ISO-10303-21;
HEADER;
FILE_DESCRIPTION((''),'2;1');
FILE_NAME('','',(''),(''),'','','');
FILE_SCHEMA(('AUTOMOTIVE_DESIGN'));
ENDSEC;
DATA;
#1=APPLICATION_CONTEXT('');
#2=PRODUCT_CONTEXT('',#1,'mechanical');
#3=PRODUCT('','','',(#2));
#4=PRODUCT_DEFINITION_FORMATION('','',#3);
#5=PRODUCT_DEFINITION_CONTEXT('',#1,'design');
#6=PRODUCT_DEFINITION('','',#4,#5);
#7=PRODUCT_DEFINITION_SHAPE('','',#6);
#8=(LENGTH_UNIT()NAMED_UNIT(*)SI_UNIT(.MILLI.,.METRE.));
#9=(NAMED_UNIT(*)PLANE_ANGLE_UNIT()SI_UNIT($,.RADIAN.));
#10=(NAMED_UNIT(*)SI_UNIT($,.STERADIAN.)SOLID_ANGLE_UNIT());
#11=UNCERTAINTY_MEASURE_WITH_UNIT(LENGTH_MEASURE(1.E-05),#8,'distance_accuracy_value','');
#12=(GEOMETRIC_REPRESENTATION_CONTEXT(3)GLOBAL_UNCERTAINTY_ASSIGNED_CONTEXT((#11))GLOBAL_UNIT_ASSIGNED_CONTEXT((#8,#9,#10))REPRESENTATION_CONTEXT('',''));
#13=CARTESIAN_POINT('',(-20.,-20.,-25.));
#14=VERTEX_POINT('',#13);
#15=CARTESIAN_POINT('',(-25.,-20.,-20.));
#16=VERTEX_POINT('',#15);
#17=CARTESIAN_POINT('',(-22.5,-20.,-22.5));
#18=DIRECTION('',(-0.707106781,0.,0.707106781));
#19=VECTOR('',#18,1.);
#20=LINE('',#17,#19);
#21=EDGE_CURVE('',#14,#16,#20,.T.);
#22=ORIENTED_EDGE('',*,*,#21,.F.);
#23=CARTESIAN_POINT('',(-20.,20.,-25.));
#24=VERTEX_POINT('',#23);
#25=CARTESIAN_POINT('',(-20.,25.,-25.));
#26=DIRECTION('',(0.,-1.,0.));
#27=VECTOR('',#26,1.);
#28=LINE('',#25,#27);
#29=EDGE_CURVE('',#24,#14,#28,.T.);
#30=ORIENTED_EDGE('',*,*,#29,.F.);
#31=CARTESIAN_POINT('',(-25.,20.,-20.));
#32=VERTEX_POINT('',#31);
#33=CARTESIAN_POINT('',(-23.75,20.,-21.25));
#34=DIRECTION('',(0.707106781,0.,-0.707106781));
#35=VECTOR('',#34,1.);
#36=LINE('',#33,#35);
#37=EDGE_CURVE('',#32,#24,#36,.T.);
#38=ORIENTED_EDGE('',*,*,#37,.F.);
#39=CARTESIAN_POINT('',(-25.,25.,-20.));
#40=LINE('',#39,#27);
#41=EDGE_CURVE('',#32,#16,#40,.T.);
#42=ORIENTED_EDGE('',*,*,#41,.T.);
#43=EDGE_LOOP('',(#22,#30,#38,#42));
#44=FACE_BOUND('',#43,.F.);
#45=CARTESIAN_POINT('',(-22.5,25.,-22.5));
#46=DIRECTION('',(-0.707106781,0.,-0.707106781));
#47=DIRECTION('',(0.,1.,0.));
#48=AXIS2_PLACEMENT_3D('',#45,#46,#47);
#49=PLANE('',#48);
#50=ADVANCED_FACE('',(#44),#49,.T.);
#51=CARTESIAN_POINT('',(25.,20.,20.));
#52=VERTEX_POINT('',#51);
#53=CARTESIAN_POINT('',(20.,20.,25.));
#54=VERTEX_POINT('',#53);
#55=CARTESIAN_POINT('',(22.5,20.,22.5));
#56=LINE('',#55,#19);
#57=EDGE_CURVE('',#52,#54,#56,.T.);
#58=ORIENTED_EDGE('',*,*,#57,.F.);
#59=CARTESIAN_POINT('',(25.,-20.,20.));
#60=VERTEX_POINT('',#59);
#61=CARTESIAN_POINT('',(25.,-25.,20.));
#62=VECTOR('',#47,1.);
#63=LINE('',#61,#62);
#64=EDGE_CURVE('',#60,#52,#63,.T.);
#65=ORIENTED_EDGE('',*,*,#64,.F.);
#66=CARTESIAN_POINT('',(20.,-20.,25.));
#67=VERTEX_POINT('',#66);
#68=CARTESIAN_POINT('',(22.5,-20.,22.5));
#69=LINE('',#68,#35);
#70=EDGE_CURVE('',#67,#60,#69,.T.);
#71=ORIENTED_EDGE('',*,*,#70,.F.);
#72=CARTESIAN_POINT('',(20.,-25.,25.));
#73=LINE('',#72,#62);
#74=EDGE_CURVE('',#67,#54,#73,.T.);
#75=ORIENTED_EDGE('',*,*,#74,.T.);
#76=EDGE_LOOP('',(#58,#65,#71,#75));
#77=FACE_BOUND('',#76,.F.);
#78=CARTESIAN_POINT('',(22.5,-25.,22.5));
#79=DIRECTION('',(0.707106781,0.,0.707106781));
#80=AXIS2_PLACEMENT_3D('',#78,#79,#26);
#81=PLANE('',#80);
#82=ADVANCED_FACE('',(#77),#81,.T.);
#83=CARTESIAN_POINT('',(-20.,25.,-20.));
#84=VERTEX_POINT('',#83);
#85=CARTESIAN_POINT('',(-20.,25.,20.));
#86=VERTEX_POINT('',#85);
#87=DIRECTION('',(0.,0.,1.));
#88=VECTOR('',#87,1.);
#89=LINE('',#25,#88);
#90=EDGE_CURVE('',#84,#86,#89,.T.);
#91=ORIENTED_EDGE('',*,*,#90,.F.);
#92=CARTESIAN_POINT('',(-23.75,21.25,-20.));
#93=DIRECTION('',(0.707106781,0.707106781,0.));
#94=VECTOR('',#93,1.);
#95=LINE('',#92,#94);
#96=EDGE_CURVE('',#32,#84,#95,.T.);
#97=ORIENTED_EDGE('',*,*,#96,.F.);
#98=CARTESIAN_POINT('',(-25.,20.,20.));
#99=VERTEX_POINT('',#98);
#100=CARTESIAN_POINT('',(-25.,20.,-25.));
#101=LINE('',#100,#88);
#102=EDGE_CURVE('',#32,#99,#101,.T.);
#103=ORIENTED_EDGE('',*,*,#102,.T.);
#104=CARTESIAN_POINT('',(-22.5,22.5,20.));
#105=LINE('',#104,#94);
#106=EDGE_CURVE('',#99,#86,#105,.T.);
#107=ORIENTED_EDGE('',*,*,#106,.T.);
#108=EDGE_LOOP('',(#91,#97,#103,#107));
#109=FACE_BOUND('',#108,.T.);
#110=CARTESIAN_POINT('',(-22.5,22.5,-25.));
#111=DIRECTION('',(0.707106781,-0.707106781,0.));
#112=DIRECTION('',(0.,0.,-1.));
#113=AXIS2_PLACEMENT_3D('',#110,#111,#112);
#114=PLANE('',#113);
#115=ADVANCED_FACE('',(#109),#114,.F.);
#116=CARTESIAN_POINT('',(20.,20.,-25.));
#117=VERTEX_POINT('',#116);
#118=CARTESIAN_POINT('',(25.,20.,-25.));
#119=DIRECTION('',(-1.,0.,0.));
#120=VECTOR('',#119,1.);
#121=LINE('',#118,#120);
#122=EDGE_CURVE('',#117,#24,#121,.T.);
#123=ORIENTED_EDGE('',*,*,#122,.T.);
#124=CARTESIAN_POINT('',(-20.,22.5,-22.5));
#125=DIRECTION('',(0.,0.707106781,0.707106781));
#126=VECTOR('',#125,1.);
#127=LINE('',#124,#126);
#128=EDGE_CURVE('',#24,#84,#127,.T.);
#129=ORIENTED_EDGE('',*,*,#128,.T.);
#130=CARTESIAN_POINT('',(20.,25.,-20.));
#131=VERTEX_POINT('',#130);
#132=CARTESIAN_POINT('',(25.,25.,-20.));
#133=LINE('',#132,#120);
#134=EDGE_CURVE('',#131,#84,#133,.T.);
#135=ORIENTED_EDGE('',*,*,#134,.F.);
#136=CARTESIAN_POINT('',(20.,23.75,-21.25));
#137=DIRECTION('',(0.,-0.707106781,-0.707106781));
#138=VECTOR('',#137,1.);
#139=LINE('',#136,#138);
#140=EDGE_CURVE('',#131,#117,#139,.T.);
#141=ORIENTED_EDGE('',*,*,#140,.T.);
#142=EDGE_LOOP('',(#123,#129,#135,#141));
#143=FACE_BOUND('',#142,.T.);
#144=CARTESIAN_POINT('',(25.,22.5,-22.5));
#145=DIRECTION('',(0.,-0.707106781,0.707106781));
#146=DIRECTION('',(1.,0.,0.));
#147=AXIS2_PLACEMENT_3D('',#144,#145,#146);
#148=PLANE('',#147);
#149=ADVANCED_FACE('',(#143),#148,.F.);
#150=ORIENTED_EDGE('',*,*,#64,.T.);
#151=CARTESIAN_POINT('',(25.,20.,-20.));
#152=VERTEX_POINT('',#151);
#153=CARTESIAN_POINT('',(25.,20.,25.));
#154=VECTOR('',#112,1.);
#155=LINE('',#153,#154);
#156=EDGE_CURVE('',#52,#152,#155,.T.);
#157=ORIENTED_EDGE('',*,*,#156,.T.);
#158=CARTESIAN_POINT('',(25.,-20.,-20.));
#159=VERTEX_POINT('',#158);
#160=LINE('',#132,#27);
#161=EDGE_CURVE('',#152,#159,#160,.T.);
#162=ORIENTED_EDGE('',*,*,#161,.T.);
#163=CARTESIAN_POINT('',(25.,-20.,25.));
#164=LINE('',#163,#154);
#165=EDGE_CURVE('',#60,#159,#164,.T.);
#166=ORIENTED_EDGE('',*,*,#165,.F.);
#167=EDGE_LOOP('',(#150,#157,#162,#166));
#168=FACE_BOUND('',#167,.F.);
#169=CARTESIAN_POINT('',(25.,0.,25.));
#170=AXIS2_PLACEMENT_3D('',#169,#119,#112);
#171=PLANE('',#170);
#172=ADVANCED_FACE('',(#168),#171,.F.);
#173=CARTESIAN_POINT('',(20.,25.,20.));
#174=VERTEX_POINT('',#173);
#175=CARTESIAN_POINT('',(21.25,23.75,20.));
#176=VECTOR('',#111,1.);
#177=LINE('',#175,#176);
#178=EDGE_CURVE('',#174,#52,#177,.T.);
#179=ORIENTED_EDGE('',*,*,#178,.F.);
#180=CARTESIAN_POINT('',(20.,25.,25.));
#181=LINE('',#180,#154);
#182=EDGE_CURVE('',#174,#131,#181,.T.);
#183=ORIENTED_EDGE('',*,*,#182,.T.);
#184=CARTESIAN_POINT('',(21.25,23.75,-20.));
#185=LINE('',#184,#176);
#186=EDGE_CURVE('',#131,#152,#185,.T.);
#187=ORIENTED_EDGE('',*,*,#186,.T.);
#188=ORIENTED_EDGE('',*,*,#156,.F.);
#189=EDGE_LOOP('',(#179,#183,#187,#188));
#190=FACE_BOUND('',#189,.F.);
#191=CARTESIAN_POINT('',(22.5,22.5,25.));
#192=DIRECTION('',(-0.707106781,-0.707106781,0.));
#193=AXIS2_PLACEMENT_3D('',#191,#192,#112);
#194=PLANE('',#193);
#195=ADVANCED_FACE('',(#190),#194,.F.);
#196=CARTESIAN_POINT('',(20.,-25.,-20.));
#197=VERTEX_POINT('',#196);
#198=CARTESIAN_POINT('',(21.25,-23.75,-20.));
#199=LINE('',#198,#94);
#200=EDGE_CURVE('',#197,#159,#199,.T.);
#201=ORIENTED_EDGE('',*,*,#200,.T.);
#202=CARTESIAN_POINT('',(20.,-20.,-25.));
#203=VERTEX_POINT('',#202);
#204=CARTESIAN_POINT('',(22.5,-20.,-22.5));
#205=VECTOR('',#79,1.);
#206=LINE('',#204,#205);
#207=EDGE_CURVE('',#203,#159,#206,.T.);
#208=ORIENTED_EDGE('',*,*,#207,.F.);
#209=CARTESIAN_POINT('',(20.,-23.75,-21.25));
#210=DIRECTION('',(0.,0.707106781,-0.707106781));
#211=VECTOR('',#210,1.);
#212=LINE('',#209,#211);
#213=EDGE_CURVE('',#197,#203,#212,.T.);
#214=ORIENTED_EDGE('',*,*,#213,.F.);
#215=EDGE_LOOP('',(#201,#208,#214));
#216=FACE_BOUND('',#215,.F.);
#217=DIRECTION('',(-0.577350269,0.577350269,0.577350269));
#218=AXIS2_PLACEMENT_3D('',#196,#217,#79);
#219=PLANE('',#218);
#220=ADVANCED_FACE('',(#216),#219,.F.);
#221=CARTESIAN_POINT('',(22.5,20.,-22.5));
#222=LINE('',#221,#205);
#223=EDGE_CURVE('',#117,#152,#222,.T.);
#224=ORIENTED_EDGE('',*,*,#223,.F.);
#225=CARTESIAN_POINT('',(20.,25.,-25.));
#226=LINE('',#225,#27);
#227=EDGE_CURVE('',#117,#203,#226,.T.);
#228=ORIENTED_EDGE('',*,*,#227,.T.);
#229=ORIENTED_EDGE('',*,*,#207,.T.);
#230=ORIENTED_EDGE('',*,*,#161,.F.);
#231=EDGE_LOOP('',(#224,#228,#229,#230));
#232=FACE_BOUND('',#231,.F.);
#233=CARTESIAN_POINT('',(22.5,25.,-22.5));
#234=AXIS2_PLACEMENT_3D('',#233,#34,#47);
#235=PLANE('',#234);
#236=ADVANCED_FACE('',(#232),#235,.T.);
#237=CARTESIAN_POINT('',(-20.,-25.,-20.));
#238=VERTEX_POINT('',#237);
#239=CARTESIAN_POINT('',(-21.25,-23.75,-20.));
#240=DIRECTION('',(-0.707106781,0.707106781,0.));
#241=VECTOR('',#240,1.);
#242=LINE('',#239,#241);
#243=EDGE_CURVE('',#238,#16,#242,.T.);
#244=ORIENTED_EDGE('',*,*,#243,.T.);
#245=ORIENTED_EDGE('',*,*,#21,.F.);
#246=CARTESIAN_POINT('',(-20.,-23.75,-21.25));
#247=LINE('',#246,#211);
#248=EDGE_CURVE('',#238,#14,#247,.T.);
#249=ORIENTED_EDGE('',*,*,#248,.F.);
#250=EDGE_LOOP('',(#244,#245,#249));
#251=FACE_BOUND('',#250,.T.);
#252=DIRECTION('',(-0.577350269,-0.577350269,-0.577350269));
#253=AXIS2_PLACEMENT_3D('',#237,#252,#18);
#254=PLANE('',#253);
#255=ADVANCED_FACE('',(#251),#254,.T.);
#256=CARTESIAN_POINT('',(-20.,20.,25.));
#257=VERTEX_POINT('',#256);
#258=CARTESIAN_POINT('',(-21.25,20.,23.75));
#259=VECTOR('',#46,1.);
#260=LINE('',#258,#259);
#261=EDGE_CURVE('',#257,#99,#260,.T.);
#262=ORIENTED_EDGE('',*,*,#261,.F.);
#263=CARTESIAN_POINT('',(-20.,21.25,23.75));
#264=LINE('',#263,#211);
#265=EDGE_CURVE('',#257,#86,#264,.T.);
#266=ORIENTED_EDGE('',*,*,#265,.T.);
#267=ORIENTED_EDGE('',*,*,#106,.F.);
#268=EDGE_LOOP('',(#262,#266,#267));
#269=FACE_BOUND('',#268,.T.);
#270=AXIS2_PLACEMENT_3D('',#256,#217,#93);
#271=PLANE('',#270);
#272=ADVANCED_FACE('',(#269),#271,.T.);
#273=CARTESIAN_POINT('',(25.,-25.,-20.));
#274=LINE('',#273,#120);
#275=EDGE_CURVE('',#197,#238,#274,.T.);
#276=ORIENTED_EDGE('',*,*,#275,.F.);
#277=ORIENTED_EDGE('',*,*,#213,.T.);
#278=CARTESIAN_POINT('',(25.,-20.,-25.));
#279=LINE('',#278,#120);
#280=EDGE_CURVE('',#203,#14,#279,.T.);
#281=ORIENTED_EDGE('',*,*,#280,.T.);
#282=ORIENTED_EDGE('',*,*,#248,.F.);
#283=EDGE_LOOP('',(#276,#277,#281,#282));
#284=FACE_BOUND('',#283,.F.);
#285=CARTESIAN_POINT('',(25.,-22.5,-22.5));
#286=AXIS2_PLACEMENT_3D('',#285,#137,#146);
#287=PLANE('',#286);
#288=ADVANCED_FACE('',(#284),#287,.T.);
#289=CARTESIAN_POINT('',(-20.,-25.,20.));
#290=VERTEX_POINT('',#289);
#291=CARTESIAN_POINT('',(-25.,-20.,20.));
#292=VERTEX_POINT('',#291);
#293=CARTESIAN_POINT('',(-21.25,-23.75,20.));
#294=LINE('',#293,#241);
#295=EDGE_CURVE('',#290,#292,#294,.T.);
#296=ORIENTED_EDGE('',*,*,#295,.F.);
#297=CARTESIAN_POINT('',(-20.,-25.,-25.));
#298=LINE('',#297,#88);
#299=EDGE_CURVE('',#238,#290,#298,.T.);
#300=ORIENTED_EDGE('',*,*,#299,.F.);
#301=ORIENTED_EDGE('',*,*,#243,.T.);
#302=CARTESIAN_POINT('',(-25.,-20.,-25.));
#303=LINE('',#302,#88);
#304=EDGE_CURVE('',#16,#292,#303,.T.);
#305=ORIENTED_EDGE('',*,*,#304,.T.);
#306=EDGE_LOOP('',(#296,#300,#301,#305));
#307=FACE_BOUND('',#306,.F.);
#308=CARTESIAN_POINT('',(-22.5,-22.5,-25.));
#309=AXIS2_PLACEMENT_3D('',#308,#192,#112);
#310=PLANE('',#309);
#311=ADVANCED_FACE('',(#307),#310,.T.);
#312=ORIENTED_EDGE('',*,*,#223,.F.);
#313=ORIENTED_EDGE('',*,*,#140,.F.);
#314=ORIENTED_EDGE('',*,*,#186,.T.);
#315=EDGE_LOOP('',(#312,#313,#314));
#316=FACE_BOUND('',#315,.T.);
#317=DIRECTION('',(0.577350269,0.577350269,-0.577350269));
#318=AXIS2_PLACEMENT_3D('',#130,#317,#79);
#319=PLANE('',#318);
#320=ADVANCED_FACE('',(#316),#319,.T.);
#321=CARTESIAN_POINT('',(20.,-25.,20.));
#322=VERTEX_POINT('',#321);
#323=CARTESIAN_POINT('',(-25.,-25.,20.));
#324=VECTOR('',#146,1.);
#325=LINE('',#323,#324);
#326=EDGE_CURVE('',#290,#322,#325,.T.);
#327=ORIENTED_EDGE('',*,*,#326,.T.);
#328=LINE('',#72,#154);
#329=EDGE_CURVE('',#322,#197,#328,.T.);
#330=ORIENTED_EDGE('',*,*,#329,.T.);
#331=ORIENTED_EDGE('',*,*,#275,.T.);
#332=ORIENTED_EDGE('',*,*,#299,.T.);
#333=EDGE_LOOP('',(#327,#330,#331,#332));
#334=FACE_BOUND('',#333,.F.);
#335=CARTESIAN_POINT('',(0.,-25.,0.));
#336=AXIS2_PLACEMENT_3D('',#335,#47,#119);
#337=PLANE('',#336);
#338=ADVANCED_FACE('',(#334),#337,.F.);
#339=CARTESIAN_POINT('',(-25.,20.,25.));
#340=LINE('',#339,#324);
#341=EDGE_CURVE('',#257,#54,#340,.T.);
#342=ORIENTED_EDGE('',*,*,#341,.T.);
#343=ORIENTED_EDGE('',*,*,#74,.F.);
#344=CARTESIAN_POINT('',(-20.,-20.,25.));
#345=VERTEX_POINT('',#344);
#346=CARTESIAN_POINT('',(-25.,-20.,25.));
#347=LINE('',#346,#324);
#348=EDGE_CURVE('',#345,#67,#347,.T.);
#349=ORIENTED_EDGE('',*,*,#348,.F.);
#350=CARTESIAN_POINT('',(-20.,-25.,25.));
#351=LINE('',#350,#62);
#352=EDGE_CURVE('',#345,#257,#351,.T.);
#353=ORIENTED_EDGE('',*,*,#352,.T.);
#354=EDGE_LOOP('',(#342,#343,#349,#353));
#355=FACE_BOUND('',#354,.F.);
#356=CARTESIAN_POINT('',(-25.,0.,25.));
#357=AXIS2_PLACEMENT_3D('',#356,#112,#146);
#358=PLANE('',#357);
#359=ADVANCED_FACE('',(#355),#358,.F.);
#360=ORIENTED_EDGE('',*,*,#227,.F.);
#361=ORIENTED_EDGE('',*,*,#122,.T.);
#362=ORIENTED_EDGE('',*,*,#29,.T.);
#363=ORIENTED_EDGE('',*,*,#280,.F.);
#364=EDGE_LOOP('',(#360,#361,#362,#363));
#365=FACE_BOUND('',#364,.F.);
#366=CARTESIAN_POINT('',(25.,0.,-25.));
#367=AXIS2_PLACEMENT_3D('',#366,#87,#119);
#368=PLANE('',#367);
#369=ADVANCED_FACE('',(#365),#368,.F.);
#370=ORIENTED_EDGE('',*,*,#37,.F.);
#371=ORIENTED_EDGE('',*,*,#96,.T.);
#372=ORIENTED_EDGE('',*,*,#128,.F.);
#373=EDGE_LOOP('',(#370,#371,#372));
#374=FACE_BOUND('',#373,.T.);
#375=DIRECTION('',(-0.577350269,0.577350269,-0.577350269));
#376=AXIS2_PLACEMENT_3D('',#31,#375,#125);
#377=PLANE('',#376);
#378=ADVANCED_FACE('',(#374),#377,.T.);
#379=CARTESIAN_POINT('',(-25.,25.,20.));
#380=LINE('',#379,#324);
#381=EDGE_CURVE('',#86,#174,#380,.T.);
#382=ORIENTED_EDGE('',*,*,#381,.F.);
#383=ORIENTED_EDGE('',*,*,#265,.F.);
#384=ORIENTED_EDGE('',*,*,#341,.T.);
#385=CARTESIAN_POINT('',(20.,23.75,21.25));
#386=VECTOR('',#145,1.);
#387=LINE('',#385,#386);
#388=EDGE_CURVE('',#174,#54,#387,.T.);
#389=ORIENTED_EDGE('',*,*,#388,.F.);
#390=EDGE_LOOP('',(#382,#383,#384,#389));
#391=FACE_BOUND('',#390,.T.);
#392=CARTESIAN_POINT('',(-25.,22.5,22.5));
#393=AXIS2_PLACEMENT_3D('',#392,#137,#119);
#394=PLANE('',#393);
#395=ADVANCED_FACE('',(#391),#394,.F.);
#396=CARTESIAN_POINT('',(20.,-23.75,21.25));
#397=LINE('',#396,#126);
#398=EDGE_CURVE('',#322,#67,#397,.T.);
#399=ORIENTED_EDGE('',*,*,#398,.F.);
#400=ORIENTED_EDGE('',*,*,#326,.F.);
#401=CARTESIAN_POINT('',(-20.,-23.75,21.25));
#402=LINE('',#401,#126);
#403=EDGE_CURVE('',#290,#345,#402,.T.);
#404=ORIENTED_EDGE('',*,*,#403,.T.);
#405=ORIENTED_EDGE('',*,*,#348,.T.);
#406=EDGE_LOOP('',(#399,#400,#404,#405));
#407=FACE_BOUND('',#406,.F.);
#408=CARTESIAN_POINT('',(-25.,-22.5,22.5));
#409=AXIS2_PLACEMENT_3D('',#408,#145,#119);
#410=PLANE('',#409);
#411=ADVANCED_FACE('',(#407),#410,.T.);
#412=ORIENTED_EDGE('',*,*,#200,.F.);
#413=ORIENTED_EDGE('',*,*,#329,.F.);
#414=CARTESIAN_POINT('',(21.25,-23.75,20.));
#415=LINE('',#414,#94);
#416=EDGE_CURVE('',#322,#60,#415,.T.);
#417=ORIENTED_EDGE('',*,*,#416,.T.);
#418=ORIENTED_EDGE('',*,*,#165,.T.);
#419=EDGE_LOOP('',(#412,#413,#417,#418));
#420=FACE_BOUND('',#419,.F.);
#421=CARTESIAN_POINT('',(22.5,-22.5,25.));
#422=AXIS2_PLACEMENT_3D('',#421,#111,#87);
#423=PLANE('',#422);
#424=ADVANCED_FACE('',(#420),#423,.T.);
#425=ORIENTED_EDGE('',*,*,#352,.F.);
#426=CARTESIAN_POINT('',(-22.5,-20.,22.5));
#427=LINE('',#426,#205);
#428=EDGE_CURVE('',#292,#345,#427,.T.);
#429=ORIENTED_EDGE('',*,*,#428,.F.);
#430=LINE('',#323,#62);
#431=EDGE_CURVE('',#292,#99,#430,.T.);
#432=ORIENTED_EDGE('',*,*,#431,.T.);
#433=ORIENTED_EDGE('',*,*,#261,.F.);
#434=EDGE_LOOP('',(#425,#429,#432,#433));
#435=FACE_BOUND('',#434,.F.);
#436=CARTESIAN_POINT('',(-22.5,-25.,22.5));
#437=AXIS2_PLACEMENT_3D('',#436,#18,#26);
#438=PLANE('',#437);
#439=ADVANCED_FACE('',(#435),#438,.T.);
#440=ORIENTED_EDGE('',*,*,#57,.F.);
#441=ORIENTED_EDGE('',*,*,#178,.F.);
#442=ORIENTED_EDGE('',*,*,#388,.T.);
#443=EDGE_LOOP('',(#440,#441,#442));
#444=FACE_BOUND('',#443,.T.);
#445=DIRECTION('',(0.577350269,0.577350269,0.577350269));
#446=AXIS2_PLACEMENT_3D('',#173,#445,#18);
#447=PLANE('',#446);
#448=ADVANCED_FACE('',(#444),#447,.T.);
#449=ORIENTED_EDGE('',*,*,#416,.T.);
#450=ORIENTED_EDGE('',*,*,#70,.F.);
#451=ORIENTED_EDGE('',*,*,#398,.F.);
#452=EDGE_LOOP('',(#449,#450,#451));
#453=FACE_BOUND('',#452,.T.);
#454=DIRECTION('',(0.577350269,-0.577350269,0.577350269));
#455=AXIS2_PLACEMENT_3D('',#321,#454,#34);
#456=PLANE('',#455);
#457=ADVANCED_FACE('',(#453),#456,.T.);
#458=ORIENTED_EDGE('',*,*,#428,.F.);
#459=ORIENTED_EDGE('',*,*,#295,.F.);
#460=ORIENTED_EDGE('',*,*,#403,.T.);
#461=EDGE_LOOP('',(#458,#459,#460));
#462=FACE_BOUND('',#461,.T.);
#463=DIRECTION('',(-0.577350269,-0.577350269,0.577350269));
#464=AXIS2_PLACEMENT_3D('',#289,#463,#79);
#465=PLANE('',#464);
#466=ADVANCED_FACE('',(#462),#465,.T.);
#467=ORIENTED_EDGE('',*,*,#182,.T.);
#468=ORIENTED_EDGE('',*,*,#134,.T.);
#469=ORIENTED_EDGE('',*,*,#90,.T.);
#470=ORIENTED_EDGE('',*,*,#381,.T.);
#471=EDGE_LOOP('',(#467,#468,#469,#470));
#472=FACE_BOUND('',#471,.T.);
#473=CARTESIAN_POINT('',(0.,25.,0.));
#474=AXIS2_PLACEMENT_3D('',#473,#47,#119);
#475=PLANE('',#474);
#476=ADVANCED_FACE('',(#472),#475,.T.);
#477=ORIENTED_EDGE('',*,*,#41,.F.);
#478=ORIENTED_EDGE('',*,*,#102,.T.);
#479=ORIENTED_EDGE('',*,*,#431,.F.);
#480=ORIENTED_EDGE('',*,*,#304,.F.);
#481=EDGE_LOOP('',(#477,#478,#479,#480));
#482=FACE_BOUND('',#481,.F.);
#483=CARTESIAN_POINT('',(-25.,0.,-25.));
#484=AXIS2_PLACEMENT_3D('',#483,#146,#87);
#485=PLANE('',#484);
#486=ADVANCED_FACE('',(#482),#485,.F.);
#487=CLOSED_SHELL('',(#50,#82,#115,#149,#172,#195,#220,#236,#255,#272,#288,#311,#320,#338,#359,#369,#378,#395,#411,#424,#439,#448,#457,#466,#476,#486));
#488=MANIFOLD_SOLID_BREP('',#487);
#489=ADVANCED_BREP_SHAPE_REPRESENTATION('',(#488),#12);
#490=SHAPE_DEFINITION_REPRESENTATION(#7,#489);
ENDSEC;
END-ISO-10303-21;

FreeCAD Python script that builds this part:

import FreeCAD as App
import Part
import Sketcher

V = App.Vector
Q = App.Units.Quantity

doc = App.newDocument("Part")
params = doc.addObject("Spreadsheet::Sheet", "Params")
for row, (alias, value) in enumerate([
    ("sketch1_width", "50 mm"),
    ("pad1_length", "50 mm"),
    ("chamfer_size", "5 mm"),
], start=1):
    params.set(f"A{row}", alias)
    params.set(f"B{row}", "=" + value)
    params.setAlias(f"B{row}", alias)

body = doc.addObject("PartDesign::Body", "Body")

sketch1 = body.newObject("Sketcher::SketchObject", "Sketch")
sketch1.AttachmentSupport = (doc.getObject("XZ_Plane"), [""])
sketch1.MapMode = "FlatFace"
sketch1.addGeometry(Part.LineSegment(V(-25, -25, 0), V(-25, 25, 0)), False)
sketch1.addGeometry(Part.LineSegment(V(-25, 25, 0), V(25, 25, 0)), False)
sketch1.addGeometry(Part.LineSegment(V(25, 25, 0), V(25, -25, 0)), False)
sketch1.addGeometry(Part.LineSegment(V(25, -25, 0), V(-25, -25, 0)), False)
sketch1.addConstraint(Sketcher.Constraint("Coincident", 0, 2, 1, 1))
sketch1.addConstraint(Sketcher.Constraint("Coincident", 1, 2, 2, 1))
sketch1.addConstraint(Sketcher.Constraint("Coincident", 2, 2, 3, 1))
sketch1.addConstraint(Sketcher.Constraint("Coincident", 3, 2, 0, 1))
sketch1.addConstraint(Sketcher.Constraint("Vertical", 0))
sketch1.addConstraint(Sketcher.Constraint("Horizontal", 1))
sketch1.addConstraint(Sketcher.Constraint("Vertical", 2))
sketch1.addConstraint(Sketcher.Constraint("Horizontal", 3))
sketch1.addConstraint(Sketcher.Constraint("Symmetric", 0, 2, 2, 2, -1, 1))
sketch1.addConstraint(Sketcher.Constraint("Equal", 3, 0))
sketch1.addConstraint(Sketcher.Constraint("DistanceX", 1, 1, 1, 2, Q("50 mm")))
sketch1.setExpression("Constraints[10]", "Params.sketch1_width")
pad1 = body.newObject("PartDesign::Pad", "Pad")
pad1.Profile = sketch1
pad1.setExpression("Length", "Params.pad1_length")
pad1.Midplane = True
doc.recompute()

chamfer = body.newObject("PartDesign::Chamfer", "Chamfer")
chamfer.Base = (pad1, ["Edge1"])
chamfer.UseAllEdges = True
chamfer.setExpression("Size", "Params.chamfer_size")

doc.recompute()
